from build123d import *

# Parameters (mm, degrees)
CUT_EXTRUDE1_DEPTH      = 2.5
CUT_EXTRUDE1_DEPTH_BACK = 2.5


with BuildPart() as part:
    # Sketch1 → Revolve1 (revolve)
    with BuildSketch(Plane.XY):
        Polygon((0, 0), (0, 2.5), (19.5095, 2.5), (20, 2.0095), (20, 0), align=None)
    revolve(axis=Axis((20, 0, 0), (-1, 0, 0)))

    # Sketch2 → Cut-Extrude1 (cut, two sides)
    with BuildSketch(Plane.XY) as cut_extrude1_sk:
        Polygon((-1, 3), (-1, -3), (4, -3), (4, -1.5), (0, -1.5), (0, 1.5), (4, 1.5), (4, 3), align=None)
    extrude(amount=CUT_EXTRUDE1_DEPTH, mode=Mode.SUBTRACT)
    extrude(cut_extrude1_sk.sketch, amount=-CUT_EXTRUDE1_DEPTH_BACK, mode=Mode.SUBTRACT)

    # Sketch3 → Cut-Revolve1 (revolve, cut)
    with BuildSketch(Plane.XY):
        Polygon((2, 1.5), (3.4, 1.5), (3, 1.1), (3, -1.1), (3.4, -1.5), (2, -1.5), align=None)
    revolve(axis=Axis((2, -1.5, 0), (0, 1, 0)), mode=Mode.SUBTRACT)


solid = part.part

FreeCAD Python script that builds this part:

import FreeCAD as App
import Part
import Sketcher
Q = App.Units.Quantity


def add_polygon(sketch, points):
    """Adds a closed chain of lines whose ends are joined by coincident constraints."""
    first, n = sketch.GeometryCount, len(points)
    for a, b in zip(points, points[1:] + points[:1]):
        sketch.addGeometry(Part.LineSegment(App.Vector(*a, 0), App.Vector(*b, 0)), False)
    for i in range(n):
        sketch.addConstraint(Sketcher.Constraint("Coincident", first + i, 2, first + (i + 1) % n, 1))

doc = App.newDocument("Part")
body = doc.addObject("PartDesign::Body", "Body")

# Sketch on XY plane
sketch1 = doc.addObject("Sketcher::SketchObject", "Sketch")
body.addObject(sketch1)
sketch1.AttachmentSupport = (doc.XY_Plane, [""])
sketch1.MapMode = "FlatFace"
add_polygon(sketch1, [(0, 2.5), (0, 0), (20, 0), (20, 2.0095), (19.5095, 2.5)])  # lines 0-4
sketch1.addConstraint([
    Sketcher.Constraint("Vertical", 0),
    Sketcher.Constraint("Horizontal", 1),
    Sketcher.Constraint("Vertical", 2),
    Sketcher.Constraint("Horizontal", 4),
    Sketcher.Constraint("Coincident", 0, 2, -1, 1),
    Sketcher.Constraint("DistanceX", 1, 1, 1, 2, 20.0),
    Sketcher.Constraint("Angle", 3, Q("135 deg")),
    Sketcher.Constraint("DistanceY", 0, 2, 0, 1, 2.5),
    Sketcher.Constraint("DistanceX", 4, 2, 4, 1, 19.5095),
])
revolution = doc.addObject("PartDesign::Revolution", "Revolution")
body.addObject(revolution)
revolution.Profile = sketch1
revolution.ReferenceAxis = (sketch1, ["H_Axis"])
revolution.Angle = 360

# Sketch on XY plane
sketch2 = doc.addObject("Sketcher::SketchObject", "Sketch001")
body.addObject(sketch2)
sketch2.AttachmentSupport = (doc.XY_Plane, [""])
sketch2.MapMode = "FlatFace"
add_polygon(sketch2, [(-1, 3), (-1, -3), (4, -3), (4, -1.5), (0, -1.5), (0, 1.5), (4, 1.5), (4, 3)])  # lines 0-7
sketch2.addConstraint([
    Sketcher.Constraint("Vertical", 0),
    Sketcher.Constraint("Horizontal", 1),
    Sketcher.Constraint("Vertical", 2),
    Sketcher.Constraint("Horizontal", 3),
    Sketcher.Constraint("Vertical", 4),
    Sketcher.Constraint("Horizontal", 5),
    Sketcher.Constraint("Vertical", 6),
    Sketcher.Constraint("Horizontal", 7),
    Sketcher.Constraint("Symmetric", 3, 2, 4, 2, -1, 1),
    Sketcher.Constraint("Symmetric", 1, 2, 6, 2, -1),
    Sketcher.Constraint("DistanceX", 1, 1, 1, 2, 5.0),
    Sketcher.Constraint("DistanceX", 3, 2, 3, 1, 4.0),
    Sketcher.Constraint("DistanceY", 0, 2, 0, 1, 6.0),
    Sketcher.Constraint("DistanceY", 4, 1, 4, 2, 3.0),
])
pocket1 = doc.addObject("PartDesign::Pocket", "Pocket")
body.addObject(pocket1)
pocket1.Profile = sketch2
pocket1.Type = "ThroughAll"
pocket1.Midplane = True

# Sketch on XY plane
sketch3 = doc.addObject("Sketcher::SketchObject", "Sketch002")
body.addObject(sketch3)
sketch3.AttachmentSupport = (doc.XY_Plane, [""])
sketch3.MapMode = "FlatFace"
add_polygon(sketch3, [(3.4, 1.5), (2, 1.5), (2, -1.5), (3.4, -1.5), (3, -1.1), (3, 1.1)])  # lines 0-5
sketch3.addGeometry(Part.LineSegment(App.Vector(2, -1.5, 0), App.Vector(2, 1.5, 0)), True)  # axis
sketch3.addConstraint([
    Sketcher.Constraint("Horizontal", 0),
    Sketcher.Constraint("Vertical", 1),
    Sketcher.Constraint("Horizontal", 2),
    Sketcher.Constraint("Vertical", 4),
    Sketcher.Constraint("Vertical", 6),
    Sketcher.Constraint("Coincident", 6, 1, 1, 2),
    Sketcher.Constraint("Symmetric", 2, 2, 5, 2, -1),
    Sketcher.Constraint("Perpendicular", 3, 5),
    Sketcher.Constraint("Horizontal", 5, 2, 6, 2),
    Sketcher.Constraint("Equal", 3, 5),
    Sketcher.Constraint("DistanceY", 1, 2, 1, 1, 3.0),
    Sketcher.Constraint("DistanceX", 0, 2, 0, 1, 1.4),
    Sketcher.Constraint("DistanceY", 4, 1, 4, 2, 2.2),
    Sketcher.Constraint("DistanceX", -1, 1, 0, 2, 2.0),
])
groove = doc.addObject("PartDesign::Groove", "Groove")
body.addObject(groove)
groove.Profile = sketch3
groove.ReferenceAxis = (sketch3, ["Axis0"])
groove.Angle = 360

doc.recompute()
